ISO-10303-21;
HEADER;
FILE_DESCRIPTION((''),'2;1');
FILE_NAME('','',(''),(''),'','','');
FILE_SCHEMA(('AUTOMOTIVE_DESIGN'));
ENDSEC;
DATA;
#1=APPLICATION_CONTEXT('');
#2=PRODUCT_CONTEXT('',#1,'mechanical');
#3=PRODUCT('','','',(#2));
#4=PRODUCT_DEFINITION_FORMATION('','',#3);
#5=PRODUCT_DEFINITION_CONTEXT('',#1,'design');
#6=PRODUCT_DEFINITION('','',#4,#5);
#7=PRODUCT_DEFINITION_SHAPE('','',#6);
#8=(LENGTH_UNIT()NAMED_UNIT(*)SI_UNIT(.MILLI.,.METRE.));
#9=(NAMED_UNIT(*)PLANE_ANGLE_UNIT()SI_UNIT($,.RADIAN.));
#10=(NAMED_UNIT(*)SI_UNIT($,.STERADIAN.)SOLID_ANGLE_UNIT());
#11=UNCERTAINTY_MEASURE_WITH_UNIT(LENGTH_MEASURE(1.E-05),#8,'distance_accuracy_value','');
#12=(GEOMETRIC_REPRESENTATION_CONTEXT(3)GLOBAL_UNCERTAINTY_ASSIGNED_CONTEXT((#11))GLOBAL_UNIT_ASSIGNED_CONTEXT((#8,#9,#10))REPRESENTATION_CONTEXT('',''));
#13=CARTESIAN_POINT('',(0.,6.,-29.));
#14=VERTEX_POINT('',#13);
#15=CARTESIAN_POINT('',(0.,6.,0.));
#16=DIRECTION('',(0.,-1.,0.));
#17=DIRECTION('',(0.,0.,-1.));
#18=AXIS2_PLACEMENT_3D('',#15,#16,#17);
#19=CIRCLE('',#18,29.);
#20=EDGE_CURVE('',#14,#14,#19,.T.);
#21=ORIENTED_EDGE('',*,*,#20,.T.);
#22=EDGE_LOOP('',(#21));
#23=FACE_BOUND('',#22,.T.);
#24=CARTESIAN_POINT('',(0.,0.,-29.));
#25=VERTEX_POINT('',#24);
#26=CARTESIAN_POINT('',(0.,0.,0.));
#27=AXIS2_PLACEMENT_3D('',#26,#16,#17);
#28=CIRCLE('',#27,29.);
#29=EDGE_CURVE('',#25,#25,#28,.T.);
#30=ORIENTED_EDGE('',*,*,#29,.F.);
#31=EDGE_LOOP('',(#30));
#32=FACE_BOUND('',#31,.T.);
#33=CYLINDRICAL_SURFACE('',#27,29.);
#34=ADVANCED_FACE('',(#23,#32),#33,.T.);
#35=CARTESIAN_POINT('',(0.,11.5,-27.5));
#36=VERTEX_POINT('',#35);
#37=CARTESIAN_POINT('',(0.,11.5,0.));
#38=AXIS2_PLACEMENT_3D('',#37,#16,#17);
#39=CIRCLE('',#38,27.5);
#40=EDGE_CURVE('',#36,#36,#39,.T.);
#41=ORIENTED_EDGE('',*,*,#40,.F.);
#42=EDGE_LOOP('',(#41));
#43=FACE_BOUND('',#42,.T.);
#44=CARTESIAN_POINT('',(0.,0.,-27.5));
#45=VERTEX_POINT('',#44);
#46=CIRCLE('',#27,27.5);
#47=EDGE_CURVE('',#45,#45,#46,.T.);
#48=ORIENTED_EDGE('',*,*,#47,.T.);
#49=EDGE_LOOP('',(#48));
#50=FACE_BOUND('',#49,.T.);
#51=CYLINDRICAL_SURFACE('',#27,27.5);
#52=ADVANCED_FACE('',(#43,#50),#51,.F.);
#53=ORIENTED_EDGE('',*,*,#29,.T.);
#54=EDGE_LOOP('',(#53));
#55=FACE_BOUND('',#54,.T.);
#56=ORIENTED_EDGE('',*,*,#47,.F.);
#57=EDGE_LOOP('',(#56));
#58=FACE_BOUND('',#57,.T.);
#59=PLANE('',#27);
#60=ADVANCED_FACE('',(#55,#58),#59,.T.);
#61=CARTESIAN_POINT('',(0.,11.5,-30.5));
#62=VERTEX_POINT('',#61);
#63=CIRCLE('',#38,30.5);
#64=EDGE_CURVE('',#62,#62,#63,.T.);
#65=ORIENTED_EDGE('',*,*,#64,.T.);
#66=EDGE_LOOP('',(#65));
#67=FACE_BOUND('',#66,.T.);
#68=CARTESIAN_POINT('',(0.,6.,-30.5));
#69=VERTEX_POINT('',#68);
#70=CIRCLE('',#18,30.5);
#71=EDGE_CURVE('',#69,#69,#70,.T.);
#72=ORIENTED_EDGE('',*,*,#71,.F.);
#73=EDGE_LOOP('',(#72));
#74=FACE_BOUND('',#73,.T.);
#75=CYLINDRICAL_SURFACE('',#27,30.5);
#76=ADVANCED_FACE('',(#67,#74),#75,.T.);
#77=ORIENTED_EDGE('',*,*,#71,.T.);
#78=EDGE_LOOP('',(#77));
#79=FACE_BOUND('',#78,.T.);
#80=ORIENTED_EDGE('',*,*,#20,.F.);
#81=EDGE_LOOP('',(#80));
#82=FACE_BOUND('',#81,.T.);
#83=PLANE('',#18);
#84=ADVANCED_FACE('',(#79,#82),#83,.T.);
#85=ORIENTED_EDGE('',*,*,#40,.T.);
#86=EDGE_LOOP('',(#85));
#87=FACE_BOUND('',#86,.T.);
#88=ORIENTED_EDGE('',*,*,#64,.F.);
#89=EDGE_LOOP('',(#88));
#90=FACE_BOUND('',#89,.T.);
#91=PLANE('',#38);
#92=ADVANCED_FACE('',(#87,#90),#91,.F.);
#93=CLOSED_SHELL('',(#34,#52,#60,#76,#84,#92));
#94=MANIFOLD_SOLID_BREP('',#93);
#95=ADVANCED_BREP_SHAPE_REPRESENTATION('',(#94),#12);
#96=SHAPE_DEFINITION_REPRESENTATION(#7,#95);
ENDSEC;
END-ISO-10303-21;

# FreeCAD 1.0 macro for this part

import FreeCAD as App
import Part
import Sketcher


def add_polygon(sketch, points):
    """Adds a closed chain of lines whose ends are joined by coincident constraints."""
    first, n = sketch.GeometryCount, len(points)
    for a, b in zip(points, points[1:] + points[:1]):
        sketch.addGeometry(Part.LineSegment(App.Vector(*a, 0), App.Vector(*b, 0)), False)
    for i in range(n):
        sketch.addConstraint(Sketcher.Constraint("Coincident", first + i, 2, first + (i + 1) % n, 1))

doc = App.newDocument("Part")
body = doc.addObject("PartDesign::Body", "Body")

# Sketch on XY plane
sketch1 = body.newObject("Sketcher::SketchObject", "Sketch")
sketch1.AttachmentSupport = (doc.getObject("XY_Plane"), [""])
sketch1.MapMode = "FlatFace"
add_polygon(sketch1, [(27.5, 11.5), (27.5, 0), (29, 0), (29, 6), (30.5, 6), (30.5, 11.5)])  # lines 0-5
sketch1.addConstraint([
    Sketcher.Constraint("Vertical", 0),
    Sketcher.Constraint("Horizontal", 1),
    Sketcher.Constraint("Vertical", 2),
    Sketcher.Constraint("Horizontal", 3),
    Sketcher.Constraint("Vertical", 4),
    Sketcher.Constraint("Horizontal", 5),
    Sketcher.Constraint("PointOnObject", 0, 2, -1),
    Sketcher.Constraint("Equal", 1, 3),
    Sketcher.Constraint("DistanceX", 5, 2, 5, 1, 3.0),
    Sketcher.Constraint("DistanceY", 2, 1, 2, 2, 6.0),
    Sketcher.Constraint("DistanceY", 0, 2, 0, 1, 11.5),
    Sketcher.Constraint("DistanceX", -1, 1, 1, 2, 29.0),
])
revolution = body.newObject("PartDesign::Revolution", "Revolution")
revolution.Profile = sketch1
revolution.ReferenceAxis = (sketch1, ["V_Axis"])
revolution.Angle = 360

doc.recompute()
